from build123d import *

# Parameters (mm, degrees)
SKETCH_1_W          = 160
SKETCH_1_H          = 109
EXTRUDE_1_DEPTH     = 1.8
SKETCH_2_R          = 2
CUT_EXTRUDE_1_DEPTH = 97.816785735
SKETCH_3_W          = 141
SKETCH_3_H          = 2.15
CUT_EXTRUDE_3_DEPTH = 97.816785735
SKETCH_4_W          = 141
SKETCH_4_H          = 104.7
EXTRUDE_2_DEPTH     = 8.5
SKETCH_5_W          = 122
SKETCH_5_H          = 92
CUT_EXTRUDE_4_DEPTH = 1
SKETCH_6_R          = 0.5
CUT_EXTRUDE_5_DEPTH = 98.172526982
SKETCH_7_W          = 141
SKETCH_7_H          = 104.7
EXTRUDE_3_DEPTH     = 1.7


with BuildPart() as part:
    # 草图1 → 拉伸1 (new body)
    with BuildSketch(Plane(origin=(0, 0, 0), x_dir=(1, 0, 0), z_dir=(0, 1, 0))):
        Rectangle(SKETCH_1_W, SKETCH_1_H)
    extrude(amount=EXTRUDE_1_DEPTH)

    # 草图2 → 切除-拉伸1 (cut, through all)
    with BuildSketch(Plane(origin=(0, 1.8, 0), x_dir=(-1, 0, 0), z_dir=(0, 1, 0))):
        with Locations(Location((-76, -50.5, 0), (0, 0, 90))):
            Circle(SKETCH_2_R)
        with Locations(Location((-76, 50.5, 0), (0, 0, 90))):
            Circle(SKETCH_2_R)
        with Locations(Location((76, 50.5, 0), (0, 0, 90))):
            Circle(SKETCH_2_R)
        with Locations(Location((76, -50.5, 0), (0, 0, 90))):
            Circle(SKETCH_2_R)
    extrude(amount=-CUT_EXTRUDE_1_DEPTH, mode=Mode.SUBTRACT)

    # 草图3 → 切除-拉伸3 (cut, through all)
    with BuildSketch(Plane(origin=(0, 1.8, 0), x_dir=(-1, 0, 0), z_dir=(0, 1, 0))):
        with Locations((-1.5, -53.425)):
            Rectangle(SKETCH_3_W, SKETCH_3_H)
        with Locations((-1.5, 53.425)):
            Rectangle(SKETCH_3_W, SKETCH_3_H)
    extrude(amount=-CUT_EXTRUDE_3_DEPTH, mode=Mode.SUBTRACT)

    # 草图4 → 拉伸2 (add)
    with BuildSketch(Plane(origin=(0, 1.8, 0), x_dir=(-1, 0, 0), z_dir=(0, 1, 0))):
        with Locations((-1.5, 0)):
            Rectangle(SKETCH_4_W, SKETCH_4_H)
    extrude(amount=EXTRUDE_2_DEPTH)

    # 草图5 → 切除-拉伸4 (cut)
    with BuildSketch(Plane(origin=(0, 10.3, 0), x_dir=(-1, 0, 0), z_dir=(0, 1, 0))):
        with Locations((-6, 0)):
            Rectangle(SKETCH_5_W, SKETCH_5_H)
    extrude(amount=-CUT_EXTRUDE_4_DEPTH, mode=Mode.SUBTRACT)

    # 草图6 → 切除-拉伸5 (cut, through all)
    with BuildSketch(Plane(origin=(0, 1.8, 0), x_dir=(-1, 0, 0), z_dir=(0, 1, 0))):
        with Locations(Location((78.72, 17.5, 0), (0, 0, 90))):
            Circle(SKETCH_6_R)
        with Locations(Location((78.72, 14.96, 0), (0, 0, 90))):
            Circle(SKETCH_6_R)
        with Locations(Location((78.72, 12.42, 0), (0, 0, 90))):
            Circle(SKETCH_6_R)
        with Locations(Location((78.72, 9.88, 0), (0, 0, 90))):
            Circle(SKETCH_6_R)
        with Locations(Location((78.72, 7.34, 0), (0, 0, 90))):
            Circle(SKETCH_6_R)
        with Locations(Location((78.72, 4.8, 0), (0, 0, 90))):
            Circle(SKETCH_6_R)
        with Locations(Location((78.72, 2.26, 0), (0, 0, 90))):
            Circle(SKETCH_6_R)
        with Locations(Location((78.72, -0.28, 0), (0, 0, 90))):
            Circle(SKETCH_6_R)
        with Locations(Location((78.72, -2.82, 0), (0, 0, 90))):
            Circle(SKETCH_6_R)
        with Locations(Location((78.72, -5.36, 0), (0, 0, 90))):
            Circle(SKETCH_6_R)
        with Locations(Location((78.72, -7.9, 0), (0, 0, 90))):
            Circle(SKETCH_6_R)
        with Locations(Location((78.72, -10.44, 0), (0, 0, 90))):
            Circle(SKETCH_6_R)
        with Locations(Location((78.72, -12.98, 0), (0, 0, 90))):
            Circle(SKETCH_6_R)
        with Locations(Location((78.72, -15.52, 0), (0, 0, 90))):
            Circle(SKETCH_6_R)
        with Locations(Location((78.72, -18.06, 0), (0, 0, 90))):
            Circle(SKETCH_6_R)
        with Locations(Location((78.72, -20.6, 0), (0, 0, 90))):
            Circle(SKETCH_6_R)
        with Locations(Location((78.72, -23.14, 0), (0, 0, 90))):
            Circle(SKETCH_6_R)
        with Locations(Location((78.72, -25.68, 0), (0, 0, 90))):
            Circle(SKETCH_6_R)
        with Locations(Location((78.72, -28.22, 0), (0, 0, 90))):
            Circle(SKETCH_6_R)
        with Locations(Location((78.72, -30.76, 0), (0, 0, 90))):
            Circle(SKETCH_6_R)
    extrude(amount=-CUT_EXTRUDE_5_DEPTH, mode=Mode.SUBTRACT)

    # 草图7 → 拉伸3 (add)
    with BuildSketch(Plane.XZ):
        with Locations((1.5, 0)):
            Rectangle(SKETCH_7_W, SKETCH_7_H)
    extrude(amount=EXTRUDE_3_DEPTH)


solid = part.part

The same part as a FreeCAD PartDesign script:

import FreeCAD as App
import Part
import Sketcher

doc = App.newDocument("Part")
body = doc.addObject("PartDesign::Body", "Body")

# Sketch on XZ plane
sketch1 = body.newObject("Sketcher::SketchObject", "Sketch")
sketch1.AttachmentSupport = (doc.getObject("XZ_Plane"), [""])
sketch1.MapMode = "FlatFace"
sketch1.addGeometry([
    Part.LineSegment(App.Vector(-80, -54, 0), App.Vector(-80, 54, 0)),
    Part.LineSegment(App.Vector(-80, 54, 0), App.Vector(80, 54, 0)),
    Part.LineSegment(App.Vector(80, 54, 0), App.Vector(80, -54, 0)),
    Part.LineSegment(App.Vector(80, -54, 0), App.Vector(-80, -54, 0)),
], False)
sketch1.addConstraint([
    Sketcher.Constraint("Coincident", 0, 2, 1, 1),
    Sketcher.Constraint("Coincident", 1, 2, 2, 1),
    Sketcher.Constraint("Coincident", 2, 2, 3, 1),
    Sketcher.Constraint("Coincident", 3, 2, 0, 1),
    Sketcher.Constraint("Vertical", 0),
    Sketcher.Constraint("Horizontal", 1),
    Sketcher.Constraint("Vertical", 2),
    Sketcher.Constraint("Horizontal", 3),
    Sketcher.Constraint("Symmetric", 0, 2, 2, 2, -1, 1),
    Sketcher.Constraint("DistanceX", 1, 1, 1, 2, 160.0),
    Sketcher.Constraint("DistanceY", 0, 1, 0, 2, 109.0),
])
pad1 = body.newObject("PartDesign::Pad", "Pad")
pad1.Profile = sketch1
pad1.Length = 1.8
pad1.Reversed = True

# Sketch on XZ plane
sketch2 = body.newObject("Sketcher::SketchObject", "Sketch001")
sketch2.AttachmentSupport = (doc.getObject("XZ_Plane"), [""])
sketch2.MapMode = "FlatFace"
sketch2.AttachmentOffset = App.Placement(App.Vector(0, 0, -1.8), App.Rotation())
sketch2.addGeometry([
    Part.Circle(App.Vector(76, -50.5, 0), App.Vector(0, 0, 1), 2),
    Part.Circle(App.Vector(76, 50.5, 0), App.Vector(0, 0, 1), 2),
    Part.Circle(App.Vector(-76, 50.5, 0), App.Vector(0, 0, 1), 2),
    Part.Circle(App.Vector(-76, -50.5, 0), App.Vector(0, 0, 1), 2),
], False)
sketch2.addConstraint([
    Sketcher.Constraint("Equal", 0, 1),
    Sketcher.Constraint("Equal", 1, 2),
    Sketcher.Constraint("Equal", 2, 3),
    Sketcher.Constraint("Symmetric", 0, 3, 2, 3, -1, 1),
    Sketcher.Constraint("Symmetric", 1, 3, 3, 3, -1, 1),
    Sketcher.Constraint("Symmetric", 1, 3, 2, 3, -2),
    Sketcher.Constraint("Diameter", 0, 4.0),
    Sketcher.Constraint("DistanceX", -1, 1, 0, 3, 76.0),
    Sketcher.Constraint("DistanceY", 0, 3, 1, 3, 101.0),
])
pocket1 = body.newObject("PartDesign::Pocket", "Pocket")
pocket1.Profile = sketch2
pocket1.Type = "ThroughAll"
pocket1.Reversed = True

# Sketch on XZ plane
sketch3 = body.newObject("Sketcher::SketchObject", "Sketch002")
sketch3.AttachmentSupport = (doc.getObject("XZ_Plane"), [""])
sketch3.MapMode = "FlatFace"
sketch3.AttachmentOffset = App.Placement(App.Vector(0, 0, -1.8), App.Rotation())
sketch3.addGeometry([
    Part.LineSegment(App.Vector(72, -52.4, 0), App.Vector(72, -54.5, 0)),  # 0
    Part.LineSegment(App.Vector(72, -54.5, 0), App.Vector(-69, -54.5, 0)),  # 1
    Part.LineSegment(App.Vector(-69, -54.5, 0), App.Vector(-69, -52.4, 0)),  # 2
    Part.LineSegment(App.Vector(-69, -52.4, 0), App.Vector(72, -52.4, 0)),  # 3
    Part.LineSegment(App.Vector(72, 54.5, 0), App.Vector(72, 52.4, 0)),  # 4
    Part.LineSegment(App.Vector(72, 52.4, 0), App.Vector(-69, 52.4, 0)),  # 5
    Part.LineSegment(App.Vector(-69, 52.4, 0), App.Vector(-69, 54.5, 0)),  # 6
    Part.LineSegment(App.Vector(-69, 54.5, 0), App.Vector(72, 54.5, 0)),  # 7
], False)
sketch3.addConstraint([
    Sketcher.Constraint("Coincident", 0, 2, 1, 1),
    Sketcher.Constraint("Coincident", 1, 2, 2, 1),
    Sketcher.Constraint("Coincident", 2, 2, 3, 1),
    Sketcher.Constraint("Coincident", 3, 2, 0, 1),
    Sketcher.Constraint("Coincident", 4, 2, 5, 1),
    Sketcher.Constraint("Coincident", 5, 2, 6, 1),
    Sketcher.Constraint("Coincident", 6, 2, 7, 1),
    Sketcher.Constraint("Coincident", 7, 2, 4, 1),
    Sketcher.Constraint("Vertical", 0),
    Sketcher.Constraint("Horizontal", 1),
    Sketcher.Constraint("Vertical", 2),
    Sketcher.Constraint("Horizontal", 3),
    Sketcher.Constraint("Vertical", 4),
    Sketcher.Constraint("Horizontal", 5),
    Sketcher.Constraint("Vertical", 6),
    Sketcher.Constraint("Horizontal", 7),
    Sketcher.Constraint("Symmetric", 3, 2, 4, 2, -1),
    Sketcher.Constraint("Symmetric", 1, 2, 6, 2, -1),
    Sketcher.Constraint("DistanceX", 1, 2, 1, 1, 141.0),
    Sketcher.Constraint("DistanceX", -1, 1, 0, 2, 72.0),
    Sketcher.Constraint("DistanceY", 1, 2, 6, 2, 109.0),
    Sketcher.Constraint("DistanceY", 0, 2, 0, 1, 2.15),
])
pocket2 = body.newObject("PartDesign::Pocket", "Pocket001")
pocket2.Profile = sketch3
pocket2.Type = "ThroughAll"
pocket2.Reversed = True

# Sketch on XZ plane
sketch4 = body.newObject("Sketcher::SketchObject", "Sketch003")
sketch4.AttachmentSupport = (doc.getObject("XZ_Plane"), [""])
sketch4.MapMode = "FlatFace"
sketch4.AttachmentOffset = App.Placement(App.Vector(0, 0, -1.8), App.Rotation())
sketch4.addGeometry([
    Part.LineSegment(App.Vector(72, 52, 0), App.Vector(72, -52, 0)),
    Part.LineSegment(App.Vector(72, -52, 0), App.Vector(-69, -52, 0)),
    Part.LineSegment(App.Vector(-69, -52, 0), App.Vector(-69, 52, 0)),
    Part.LineSegment(App.Vector(-69, 52, 0), App.Vector(72, 52, 0)),
], False)
sketch4.addConstraint([
    Sketcher.Constraint("Coincident", 0, 2, 1, 1),
    Sketcher.Constraint("Coincident", 1, 2, 2, 1),
    Sketcher.Constraint("Coincident", 2, 2, 3, 1),
    Sketcher.Constraint("Coincident", 3, 2, 0, 1),
    Sketcher.Constraint("Vertical", 0),
    Sketcher.Constraint("Horizontal", 1),
    Sketcher.Constraint("Vertical", 2),
    Sketcher.Constraint("Horizontal", 3),
    Sketcher.Constraint("DistanceX", 1, 2, 1, 1, 141.0),
    Sketcher.Constraint("DistanceY", 0, 2, 0, 1, 104.7),
    Sketcher.Constraint("DistanceX", -1, 1, 0, 2, 72.0),
    Sketcher.Constraint("DistanceY", 0, 2, -1, 1, 52.35),
])
pad2 = body.newObject("PartDesign::Pad", "Pad001")
pad2.Profile = sketch4
pad2.Length = 8.5
pad2.Reversed = True

# Sketch on XZ plane
sketch5 = body.newObject("Sketcher::SketchObject", "Sketch004")
sketch5.AttachmentSupport = (doc.getObject("XZ_Plane"), [""])
sketch5.MapMode = "FlatFace"
sketch5.AttachmentOffset = App.Placement(App.Vector(0, 0, -10.3), App.Rotation())
sketch5.addGeometry([
    Part.LineSegment(App.Vector(67, 46, 0), App.Vector(67, -46, 0)),
    Part.LineSegment(App.Vector(67, -46, 0), App.Vector(-55, -46, 0)),
    Part.LineSegment(App.Vector(-55, -46, 0), App.Vector(-55, 46, 0)),
    Part.LineSegment(App.Vector(-55, 46, 0), App.Vector(67, 46, 0)),
], False)
sketch5.addConstraint([
    Sketcher.Constraint("Coincident", 0, 2, 1, 1),
    Sketcher.Constraint("Coincident", 1, 2, 2, 1),
    Sketcher.Constraint("Coincident", 2, 2, 3, 1),
    Sketcher.Constraint("Coincident", 3, 2, 0, 1),
    Sketcher.Constraint("Vertical", 0),
    Sketcher.Constraint("Horizontal", 1),
    Sketcher.Constraint("Vertical", 2),
    Sketcher.Constraint("Horizontal", 3),
    Sketcher.Constraint("DistanceX", 1, 2, 1, 1, 122.0),
    Sketcher.Constraint("DistanceY", 0, 2, 0, 1, 92.0),
    Sketcher.Constraint("DistanceX", -1, 1, 0, 2, 67.0),
    Sketcher.Constraint("DistanceY", 0, 2, -1, 1, 46.0),
])
pocket3 = body.newObject("PartDesign::Pocket", "Pocket002")
pocket3.Profile = sketch5
pocket3.Length = 1
pocket3.Reversed = True

# Sketch on XZ plane
sketch6 = body.newObject("Sketcher::SketchObject", "Sketch005")
sketch6.AttachmentSupport = (doc.getObject("XZ_Plane"), [""])
sketch6.MapMode = "FlatFace"
sketch6.AttachmentOffset = App.Placement(App.Vector(0, 0, -1.8), App.Rotation())
sketch6.addGeometry([
    Part.Circle(App.Vector(-78.7, 17.5, 0), App.Vector(0, 0, 1), 0.5),  # 0
    Part.Circle(App.Vector(-78.7, 15, 0), App.Vector(0, 0, 1), 0.5),  # 1
    Part.Circle(App.Vector(-78.7, 12.4, 0), App.Vector(0, 0, 1), 0.5),  # 2
    Part.Circle(App.Vector(-78.7, 9.9, 0), App.Vector(0, 0, 1), 0.5),  # 3
    Part.Circle(App.Vector(-78.7, 7.3, 0), App.Vector(0, 0, 1), 0.5),  # 4
    Part.Circle(App.Vector(-78.7, 4.8, 0), App.Vector(0, 0, 1), 0.5),  # 5
    Part.Circle(App.Vector(-78.7, 2.3, 0), App.Vector(0, 0, 1), 0.5),  # 6
    Part.Circle(App.Vector(-78.7, -0.3, 0), App.Vector(0, 0, 1), 0.5),  # 7
    Part.Circle(App.Vector(-78.7, -2.8, 0), App.Vector(0, 0, 1), 0.5),  # 8
    Part.Circle(App.Vector(-78.7, -5.4, 0), App.Vector(0, 0, 1), 0.5),  # 9
    Part.Circle(App.Vector(-78.7, -7.9, 0), App.Vector(0, 0, 1), 0.5),  # 10
    Part.Circle(App.Vector(-78.7, -10.4, 0), App.Vector(0, 0, 1), 0.5),  # 11
    Part.Circle(App.Vector(-78.7, -13, 0), App.Vector(0, 0, 1), 0.5),  # 12
    Part.Circle(App.Vector(-78.7, -15.5, 0), App.Vector(0, 0, 1), 0.5),  # 13
    Part.Circle(App.Vector(-78.7, -18.1, 0), App.Vector(0, 0, 1), 0.5),  # 14
    Part.Circle(App.Vector(-78.7, -20.6, 0), App.Vector(0, 0, 1), 0.5),  # 15
    Part.Circle(App.Vector(-78.7, -23.1, 0), App.Vector(0, 0, 1), 0.5),  # 16
    Part.Circle(App.Vector(-78.7, -25.7, 0), App.Vector(0, 0, 1), 0.5),  # 17
    Part.Circle(App.Vector(-78.7, -28.2, 0), App.Vector(0, 0, 1), 0.5),  # 18
    Part.Circle(App.Vector(-78.7, -30.8, 0), App.Vector(0, 0, 1), 0.5),  # 19
], False)
sketch6.addConstraint([
    Sketcher.Constraint("Equal", 0, 1),
    Sketcher.Constraint("Equal", 1, 2),
    Sketcher.Constraint("Equal", 2, 3),
    Sketcher.Constraint("Equal", 3, 4),
    Sketcher.Constraint("Equal", 4, 5),
    Sketcher.Constraint("Equal", 5, 6),
    Sketcher.Constraint("Equal", 6, 7),
    Sketcher.Constraint("Equal", 7, 8),
    Sketcher.Constraint("Equal", 8, 9),
    Sketcher.Constraint("Equal", 9, 10),
    Sketcher.Constraint("Equal", 10, 11),
    Sketcher.Constraint("Equal", 11, 12),
    Sketcher.Constraint("Equal", 12, 13),
    Sketcher.Constraint("Equal", 13, 14),
    Sketcher.Constraint("Equal", 14, 15),
    Sketcher.Constraint("Equal", 15, 16),
    Sketcher.Constraint("Equal", 16, 17),
    Sketcher.Constraint("Equal", 17, 18),
    Sketcher.Constraint("Equal", 18, 19),
    Sketcher.Constraint("Vertical", 0, 3, 1, 3),
    Sketcher.Constraint("Vertical", 1, 3, 2, 3),
    Sketcher.Constraint("Vertical", 2, 3, 3, 3),
    Sketcher.Constraint("Vertical", 3, 3, 4, 3),
    Sketcher.Constraint("Vertical", 4, 3, 5, 3),
    Sketcher.Constraint("Vertical", 5, 3, 6, 3),
    Sketcher.Constraint("Vertical", 6, 3, 7, 3),
    Sketcher.Constraint("Vertical", 7, 3, 8, 3),
    Sketcher.Constraint("Vertical", 8, 3, 9, 3),
    Sketcher.Constraint("Vertical", 9, 3, 10, 3),
    Sketcher.Constraint("Vertical", 10, 3, 11, 3),
    Sketcher.Constraint("Vertical", 11, 3, 12, 3),
    Sketcher.Constraint("Vertical", 12, 3, 13, 3),
    Sketcher.Constraint("Vertical", 13, 3, 14, 3),
    Sketcher.Constraint("Vertical", 14, 3, 15, 3),
    Sketcher.Constraint("Vertical", 15, 3, 16, 3),
    Sketcher.Constraint("Vertical", 16, 3, 17, 3),
    Sketcher.Constraint("Vertical", 17, 3, 18, 3),
    Sketcher.Constraint("Vertical", 18, 3, 19, 3),
    Sketcher.Constraint("Diameter", 0, 1.0),
    Sketcher.Constraint("DistanceY", -1, 1, 0, 3, 17.5),
    Sketcher.Constraint("DistanceY", -1, 1, 5, 3, 4.8),
    Sketcher.Constraint("DistanceY", 10, 3, -1, 1, 7.9),
    Sketcher.Constraint("DistanceY", 15, 3, -1, 1, 20.6),
    Sketcher.Constraint("DistanceY", 6, 3, 1, 3, 12.7),
    Sketcher.Constraint("DistanceY", 7, 3, 2, 3, 12.7),
    Sketcher.Constraint("DistanceY", 8, 3, 3, 3, 12.7),
    Sketcher.Constraint("DistanceY", 9, 3, 4, 3, 12.7),
    Sketcher.Constraint("DistanceY", 11, 3, 6, 3, 12.7),
    Sketcher.Constraint("DistanceY", 12, 3, 7, 3, 12.7),
    Sketcher.Constraint("DistanceY", 13, 3, 8, 3, 12.7),
    Sketcher.Constraint("DistanceY", 14, 3, 9, 3, 12.7),
    Sketcher.Constraint("DistanceY", 16, 3, 11, 3, 12.7),
    Sketcher.Constraint("DistanceY", 17, 3, 12, 3, 12.7),
    Sketcher.Constraint("DistanceY", 18, 3, 13, 3, 12.7),
    Sketcher.Constraint("DistanceY", 19, 3, 14, 3, 12.7),
    Sketcher.Constraint("DistanceX", 0, 3, -1, 1, 78.72),
    Sketcher.Constraint("DistanceY", -1, 1, 1, 3, 14.96),
    Sketcher.Constraint("DistanceY", -1, 1, 2, 3, 12.42),
    Sketcher.Constraint("DistanceY", -1, 1, 3, 3, 9.88),
    Sketcher.Constraint("DistanceY", -1, 1, 4, 3, 7.34),
])
pocket4 = body.newObject("PartDesign::Pocket", "Pocket003")
pocket4.Profile = sketch6
pocket4.Type = "ThroughAll"
pocket4.Reversed = True

# Sketch on XZ plane
sketch7 = body.newObject("Sketcher::SketchObject", "Sketch006")
sketch7.AttachmentSupport = (doc.getObject("XZ_Plane"), [""])
sketch7.MapMode = "FlatFace"
sketch7.addGeometry([
    Part.LineSegment(App.Vector(-69, 52, 0), App.Vector(-69, -52, 0)),
    Part.LineSegment(App.Vector(-69, -52, 0), App.Vector(72, -52, 0)),
    Part.LineSegment(App.Vector(72, -52, 0), App.Vector(72, 52, 0)),
    Part.LineSegment(App.Vector(72, 52, 0), App.Vector(-69, 52, 0)),
], False)
sketch7.addConstraint([
    Sketcher.Constraint("Coincident", 0, 2, 1, 1),
    Sketcher.Constraint("Coincident", 1, 2, 2, 1),
    Sketcher.Constraint("Coincident", 2, 2, 3, 1),
    Sketcher.Constraint("Coincident", 3, 2, 0, 1),
    Sketcher.Constraint("Vertical", 0),
    Sketcher.Constraint("Horizontal", 1),
    Sketcher.Constraint("Vertical", 2),
    Sketcher.Constraint("Horizontal", 3),
    Sketcher.Constraint("DistanceX", 1, 1, 1, 2, 141.0),
    Sketcher.Constraint("DistanceY", 0, 2, 0, 1, 104.7),
    Sketcher.Constraint("DistanceX", 0, 2, -1, 1, 69.0),
    Sketcher.Constraint("DistanceY", 0, 2, -1, 1, 52.35),
])
pad3 = body.newObject("PartDesign::Pad", "Pad002")
pad3.Profile = sketch7
pad3.Length = 1.7

doc.recompute()
